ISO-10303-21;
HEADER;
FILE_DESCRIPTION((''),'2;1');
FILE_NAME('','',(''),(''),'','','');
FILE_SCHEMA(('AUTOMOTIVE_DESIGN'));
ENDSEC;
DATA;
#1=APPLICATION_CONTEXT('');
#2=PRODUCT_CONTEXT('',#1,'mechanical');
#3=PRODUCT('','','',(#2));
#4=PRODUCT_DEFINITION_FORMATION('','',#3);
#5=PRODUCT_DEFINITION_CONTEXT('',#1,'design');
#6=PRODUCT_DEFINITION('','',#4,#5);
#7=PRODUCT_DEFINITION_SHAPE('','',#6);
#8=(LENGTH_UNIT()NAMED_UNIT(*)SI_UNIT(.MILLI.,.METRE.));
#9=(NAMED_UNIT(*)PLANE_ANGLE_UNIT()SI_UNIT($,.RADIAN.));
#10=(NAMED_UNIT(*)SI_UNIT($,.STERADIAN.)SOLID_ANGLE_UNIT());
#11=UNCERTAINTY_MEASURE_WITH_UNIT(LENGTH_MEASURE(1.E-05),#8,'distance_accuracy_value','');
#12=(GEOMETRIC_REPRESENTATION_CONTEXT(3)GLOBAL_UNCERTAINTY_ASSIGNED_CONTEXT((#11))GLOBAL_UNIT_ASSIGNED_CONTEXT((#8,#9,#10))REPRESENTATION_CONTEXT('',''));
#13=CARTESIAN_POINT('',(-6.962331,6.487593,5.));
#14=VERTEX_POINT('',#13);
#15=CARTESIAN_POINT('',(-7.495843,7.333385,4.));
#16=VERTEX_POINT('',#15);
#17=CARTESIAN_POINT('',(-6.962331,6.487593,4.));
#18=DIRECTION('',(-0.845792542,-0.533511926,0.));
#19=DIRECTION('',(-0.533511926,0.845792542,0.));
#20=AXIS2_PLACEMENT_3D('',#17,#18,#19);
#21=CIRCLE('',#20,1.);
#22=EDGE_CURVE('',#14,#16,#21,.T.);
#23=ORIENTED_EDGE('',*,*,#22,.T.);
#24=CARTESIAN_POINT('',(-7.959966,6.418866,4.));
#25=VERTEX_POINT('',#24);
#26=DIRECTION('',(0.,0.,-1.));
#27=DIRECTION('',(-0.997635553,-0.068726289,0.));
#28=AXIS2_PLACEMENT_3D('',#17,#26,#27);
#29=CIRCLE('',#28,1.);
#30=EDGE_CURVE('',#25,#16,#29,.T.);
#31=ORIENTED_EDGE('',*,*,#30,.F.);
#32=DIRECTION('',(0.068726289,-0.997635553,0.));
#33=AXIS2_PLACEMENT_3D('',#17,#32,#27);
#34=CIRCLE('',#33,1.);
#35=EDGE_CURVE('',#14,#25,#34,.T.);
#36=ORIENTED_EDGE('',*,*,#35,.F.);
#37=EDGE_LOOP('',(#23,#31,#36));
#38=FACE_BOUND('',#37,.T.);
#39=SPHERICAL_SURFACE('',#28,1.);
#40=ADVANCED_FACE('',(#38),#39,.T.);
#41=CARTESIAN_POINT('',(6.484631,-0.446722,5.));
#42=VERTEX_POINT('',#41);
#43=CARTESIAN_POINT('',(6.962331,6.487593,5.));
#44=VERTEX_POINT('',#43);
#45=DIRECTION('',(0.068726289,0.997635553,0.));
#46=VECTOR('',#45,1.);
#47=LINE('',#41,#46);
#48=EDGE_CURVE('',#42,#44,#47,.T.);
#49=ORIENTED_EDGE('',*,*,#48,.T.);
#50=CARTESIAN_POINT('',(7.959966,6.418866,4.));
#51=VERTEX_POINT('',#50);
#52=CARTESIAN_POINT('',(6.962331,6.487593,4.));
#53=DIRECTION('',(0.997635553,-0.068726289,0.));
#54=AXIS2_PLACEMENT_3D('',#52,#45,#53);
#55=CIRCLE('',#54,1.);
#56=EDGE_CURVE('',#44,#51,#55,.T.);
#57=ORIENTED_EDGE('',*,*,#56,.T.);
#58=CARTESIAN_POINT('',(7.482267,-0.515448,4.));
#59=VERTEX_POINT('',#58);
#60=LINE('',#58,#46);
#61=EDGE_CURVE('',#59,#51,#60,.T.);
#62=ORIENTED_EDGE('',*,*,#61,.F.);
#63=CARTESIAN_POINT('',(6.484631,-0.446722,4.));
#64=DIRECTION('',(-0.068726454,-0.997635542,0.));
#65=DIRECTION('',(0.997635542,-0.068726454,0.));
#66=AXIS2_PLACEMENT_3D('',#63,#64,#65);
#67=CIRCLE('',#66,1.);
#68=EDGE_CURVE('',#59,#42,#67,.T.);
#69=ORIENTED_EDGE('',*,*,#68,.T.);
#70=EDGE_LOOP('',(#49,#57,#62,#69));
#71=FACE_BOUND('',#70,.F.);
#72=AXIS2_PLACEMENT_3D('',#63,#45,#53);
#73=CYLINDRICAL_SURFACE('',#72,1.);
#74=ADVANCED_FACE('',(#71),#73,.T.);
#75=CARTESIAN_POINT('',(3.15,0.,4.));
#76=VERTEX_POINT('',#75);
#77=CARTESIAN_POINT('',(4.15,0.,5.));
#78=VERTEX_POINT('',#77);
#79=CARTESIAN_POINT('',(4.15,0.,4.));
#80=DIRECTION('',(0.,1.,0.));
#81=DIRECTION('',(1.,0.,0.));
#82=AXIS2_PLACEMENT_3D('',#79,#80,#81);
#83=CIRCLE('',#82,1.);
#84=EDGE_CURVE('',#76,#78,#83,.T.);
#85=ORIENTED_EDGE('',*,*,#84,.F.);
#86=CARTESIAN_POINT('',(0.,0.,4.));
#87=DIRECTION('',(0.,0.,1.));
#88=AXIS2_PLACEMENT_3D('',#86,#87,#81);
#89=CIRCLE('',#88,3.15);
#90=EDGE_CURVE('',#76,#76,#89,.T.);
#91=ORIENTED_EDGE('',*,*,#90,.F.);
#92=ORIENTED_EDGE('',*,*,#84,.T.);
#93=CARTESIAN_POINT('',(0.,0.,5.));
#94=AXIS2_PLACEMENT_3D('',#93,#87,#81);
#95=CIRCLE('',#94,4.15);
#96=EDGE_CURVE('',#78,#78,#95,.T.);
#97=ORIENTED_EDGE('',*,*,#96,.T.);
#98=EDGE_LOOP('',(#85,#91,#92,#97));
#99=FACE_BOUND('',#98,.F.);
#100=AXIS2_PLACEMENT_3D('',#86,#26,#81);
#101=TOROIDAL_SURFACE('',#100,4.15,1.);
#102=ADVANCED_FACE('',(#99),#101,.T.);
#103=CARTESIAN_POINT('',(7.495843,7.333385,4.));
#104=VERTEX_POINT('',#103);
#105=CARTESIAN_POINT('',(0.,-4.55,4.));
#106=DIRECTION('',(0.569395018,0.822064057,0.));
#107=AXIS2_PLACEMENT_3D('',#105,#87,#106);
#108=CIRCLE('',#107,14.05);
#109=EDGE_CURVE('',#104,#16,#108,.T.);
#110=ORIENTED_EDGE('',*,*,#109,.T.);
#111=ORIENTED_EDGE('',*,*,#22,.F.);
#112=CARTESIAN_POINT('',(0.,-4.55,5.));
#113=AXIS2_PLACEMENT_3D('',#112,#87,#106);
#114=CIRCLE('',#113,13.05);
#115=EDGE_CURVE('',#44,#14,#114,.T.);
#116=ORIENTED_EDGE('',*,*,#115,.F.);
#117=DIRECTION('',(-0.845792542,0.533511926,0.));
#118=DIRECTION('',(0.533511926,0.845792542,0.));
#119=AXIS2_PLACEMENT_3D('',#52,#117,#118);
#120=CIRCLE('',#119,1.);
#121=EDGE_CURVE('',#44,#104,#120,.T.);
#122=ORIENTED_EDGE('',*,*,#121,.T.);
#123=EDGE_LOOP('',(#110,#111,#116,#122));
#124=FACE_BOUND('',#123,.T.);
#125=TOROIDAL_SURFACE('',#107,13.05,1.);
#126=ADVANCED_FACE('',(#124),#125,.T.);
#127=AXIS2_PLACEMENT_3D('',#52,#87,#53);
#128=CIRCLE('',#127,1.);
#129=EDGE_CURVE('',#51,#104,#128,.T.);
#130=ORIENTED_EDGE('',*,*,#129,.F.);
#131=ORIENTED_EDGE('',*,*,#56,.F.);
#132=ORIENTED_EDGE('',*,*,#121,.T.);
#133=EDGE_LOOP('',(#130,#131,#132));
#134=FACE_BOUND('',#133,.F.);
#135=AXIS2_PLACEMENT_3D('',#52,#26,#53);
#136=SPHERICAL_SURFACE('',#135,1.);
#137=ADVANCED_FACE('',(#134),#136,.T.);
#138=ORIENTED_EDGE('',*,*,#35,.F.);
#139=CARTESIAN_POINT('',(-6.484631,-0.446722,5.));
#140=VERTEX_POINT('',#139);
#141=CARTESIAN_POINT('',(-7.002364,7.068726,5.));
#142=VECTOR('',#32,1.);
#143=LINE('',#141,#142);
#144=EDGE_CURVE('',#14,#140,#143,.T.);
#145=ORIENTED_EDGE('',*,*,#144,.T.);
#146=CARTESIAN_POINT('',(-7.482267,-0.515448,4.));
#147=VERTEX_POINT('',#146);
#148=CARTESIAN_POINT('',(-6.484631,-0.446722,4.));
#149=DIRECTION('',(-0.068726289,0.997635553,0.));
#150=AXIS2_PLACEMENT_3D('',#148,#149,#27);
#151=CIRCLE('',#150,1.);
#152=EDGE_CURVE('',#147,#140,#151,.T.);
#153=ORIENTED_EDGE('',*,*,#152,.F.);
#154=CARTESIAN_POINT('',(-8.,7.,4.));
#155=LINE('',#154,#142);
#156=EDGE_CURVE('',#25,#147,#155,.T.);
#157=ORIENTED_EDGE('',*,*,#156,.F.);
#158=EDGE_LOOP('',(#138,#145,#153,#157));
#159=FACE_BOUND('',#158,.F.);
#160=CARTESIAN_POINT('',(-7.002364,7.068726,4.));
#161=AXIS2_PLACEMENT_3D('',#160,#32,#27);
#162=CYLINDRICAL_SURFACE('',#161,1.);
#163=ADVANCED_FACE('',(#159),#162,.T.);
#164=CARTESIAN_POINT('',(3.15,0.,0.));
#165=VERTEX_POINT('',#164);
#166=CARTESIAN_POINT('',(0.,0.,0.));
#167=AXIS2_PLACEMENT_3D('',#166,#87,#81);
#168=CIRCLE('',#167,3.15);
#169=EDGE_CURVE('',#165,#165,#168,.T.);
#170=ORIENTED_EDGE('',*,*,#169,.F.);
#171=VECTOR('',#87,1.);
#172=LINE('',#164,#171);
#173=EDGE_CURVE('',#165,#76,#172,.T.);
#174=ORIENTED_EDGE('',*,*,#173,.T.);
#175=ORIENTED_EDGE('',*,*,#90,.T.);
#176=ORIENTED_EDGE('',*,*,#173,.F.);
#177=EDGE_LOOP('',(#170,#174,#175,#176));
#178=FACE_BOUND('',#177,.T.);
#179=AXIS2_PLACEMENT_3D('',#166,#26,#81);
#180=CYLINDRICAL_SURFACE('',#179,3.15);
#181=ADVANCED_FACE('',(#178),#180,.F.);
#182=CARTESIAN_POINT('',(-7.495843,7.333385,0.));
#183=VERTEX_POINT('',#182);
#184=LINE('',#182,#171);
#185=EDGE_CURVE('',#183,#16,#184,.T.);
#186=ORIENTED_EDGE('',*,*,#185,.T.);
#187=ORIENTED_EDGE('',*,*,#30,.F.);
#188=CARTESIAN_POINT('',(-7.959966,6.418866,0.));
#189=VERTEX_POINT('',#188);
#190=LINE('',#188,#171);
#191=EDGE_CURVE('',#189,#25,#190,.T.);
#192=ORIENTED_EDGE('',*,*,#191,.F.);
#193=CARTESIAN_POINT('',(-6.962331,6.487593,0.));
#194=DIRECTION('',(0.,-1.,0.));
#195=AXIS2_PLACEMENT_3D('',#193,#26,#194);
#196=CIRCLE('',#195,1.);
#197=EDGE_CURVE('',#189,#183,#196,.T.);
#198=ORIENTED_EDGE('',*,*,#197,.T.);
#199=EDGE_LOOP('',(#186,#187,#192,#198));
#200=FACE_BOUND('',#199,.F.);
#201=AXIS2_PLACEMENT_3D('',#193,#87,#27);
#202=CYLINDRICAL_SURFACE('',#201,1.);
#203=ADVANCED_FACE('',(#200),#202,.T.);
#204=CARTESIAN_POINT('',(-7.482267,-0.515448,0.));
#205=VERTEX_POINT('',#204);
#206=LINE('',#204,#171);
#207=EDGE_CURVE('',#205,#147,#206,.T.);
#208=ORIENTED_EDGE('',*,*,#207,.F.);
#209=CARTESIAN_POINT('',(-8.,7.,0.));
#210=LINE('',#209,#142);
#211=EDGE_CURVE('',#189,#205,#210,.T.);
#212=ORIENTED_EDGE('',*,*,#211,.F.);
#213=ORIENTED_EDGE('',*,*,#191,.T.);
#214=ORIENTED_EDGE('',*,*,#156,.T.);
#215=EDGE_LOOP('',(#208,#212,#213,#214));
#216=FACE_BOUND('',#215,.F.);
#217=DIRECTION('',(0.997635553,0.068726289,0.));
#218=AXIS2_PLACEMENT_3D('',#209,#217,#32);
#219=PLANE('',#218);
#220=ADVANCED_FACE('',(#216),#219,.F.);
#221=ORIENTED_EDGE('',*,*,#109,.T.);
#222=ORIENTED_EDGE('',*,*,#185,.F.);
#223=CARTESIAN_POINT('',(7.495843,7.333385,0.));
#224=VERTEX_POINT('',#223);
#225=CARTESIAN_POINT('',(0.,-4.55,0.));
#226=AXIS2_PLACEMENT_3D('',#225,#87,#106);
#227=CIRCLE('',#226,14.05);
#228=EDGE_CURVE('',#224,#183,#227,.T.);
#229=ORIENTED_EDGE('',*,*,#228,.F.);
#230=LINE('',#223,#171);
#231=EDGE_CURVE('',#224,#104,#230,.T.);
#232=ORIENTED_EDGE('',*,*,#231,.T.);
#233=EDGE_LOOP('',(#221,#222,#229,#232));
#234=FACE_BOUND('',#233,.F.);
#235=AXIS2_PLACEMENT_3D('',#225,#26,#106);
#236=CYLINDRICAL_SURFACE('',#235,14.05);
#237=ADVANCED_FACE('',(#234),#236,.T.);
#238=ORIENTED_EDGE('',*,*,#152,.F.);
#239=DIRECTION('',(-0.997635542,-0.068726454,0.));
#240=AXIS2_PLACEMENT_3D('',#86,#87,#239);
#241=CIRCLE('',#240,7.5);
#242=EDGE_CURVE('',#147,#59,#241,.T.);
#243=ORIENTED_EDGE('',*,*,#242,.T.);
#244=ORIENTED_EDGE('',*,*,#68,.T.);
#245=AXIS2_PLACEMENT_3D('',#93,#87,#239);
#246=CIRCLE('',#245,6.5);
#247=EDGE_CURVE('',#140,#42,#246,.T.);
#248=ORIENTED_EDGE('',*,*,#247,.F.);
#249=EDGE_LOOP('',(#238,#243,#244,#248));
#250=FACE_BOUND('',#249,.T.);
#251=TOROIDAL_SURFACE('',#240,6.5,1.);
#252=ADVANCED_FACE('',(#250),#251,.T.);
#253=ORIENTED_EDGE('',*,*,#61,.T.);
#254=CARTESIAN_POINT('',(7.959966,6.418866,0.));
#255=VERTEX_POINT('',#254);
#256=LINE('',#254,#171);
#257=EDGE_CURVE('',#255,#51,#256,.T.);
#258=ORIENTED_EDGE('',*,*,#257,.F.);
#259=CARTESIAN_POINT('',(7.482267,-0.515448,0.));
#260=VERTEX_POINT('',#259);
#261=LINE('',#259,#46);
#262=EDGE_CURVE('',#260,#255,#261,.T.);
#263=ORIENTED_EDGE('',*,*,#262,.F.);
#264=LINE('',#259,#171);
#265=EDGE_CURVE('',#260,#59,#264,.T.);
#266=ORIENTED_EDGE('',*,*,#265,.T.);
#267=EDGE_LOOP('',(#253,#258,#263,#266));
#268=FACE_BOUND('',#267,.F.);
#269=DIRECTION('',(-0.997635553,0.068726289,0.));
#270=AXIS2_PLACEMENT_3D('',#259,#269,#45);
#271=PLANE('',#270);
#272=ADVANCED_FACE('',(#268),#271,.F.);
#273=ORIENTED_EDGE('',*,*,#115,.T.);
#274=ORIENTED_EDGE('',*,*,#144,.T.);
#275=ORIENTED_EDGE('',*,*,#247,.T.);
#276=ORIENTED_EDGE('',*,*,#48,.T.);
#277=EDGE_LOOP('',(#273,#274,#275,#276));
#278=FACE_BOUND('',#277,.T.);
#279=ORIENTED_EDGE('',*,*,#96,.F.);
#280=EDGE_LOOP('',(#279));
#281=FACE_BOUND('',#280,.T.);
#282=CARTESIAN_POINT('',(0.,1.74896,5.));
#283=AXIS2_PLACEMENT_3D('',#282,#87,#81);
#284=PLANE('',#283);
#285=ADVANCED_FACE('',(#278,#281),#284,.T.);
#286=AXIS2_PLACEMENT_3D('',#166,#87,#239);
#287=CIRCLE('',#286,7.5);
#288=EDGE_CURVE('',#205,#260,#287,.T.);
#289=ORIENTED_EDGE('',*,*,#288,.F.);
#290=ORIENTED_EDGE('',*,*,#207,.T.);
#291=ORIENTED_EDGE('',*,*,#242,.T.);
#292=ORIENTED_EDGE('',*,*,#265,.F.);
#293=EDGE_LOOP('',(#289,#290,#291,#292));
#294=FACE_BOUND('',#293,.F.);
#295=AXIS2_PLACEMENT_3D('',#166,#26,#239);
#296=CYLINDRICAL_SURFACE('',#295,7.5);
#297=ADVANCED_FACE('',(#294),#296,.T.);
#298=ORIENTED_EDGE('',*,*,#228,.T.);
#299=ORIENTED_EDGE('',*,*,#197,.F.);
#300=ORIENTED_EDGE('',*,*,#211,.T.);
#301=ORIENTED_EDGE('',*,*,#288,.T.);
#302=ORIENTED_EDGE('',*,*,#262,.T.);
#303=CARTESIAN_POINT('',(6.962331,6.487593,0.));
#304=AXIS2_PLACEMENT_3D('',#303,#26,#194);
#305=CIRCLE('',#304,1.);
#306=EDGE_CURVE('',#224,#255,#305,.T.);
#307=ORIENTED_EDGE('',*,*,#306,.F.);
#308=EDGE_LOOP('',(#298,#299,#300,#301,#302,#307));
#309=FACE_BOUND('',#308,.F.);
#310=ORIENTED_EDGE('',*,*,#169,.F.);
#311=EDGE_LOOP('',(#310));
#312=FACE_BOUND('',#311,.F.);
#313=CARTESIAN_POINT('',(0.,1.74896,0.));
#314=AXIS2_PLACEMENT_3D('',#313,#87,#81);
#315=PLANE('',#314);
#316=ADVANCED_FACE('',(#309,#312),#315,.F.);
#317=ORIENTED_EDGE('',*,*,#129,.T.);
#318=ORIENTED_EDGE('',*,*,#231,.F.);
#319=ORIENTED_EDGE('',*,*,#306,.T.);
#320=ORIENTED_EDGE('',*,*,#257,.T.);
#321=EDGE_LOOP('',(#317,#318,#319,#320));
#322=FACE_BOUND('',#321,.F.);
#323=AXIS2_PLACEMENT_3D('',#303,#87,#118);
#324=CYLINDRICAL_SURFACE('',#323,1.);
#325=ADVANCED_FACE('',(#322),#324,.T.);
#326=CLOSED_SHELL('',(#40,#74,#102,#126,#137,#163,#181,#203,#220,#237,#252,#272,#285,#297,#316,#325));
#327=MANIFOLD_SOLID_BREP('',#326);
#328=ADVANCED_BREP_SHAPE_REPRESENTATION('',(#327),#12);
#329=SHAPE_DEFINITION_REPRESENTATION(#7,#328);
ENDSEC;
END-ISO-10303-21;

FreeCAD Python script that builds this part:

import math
import FreeCAD as App
import Part
import Sketcher
from FreeCAD import Vector


def edges_at(feature, points):
    """Names of the edges that pass closest to the given points."""
    edges = feature.Shape.Edges
    near = lambda p: min(range(len(edges)), key=lambda i: edges[i].distToShape(Part.Vertex(*p))[0])
    return sorted({f"Edge{near(p) + 1}" for p in points})

doc = App.newDocument("Part")
body = doc.addObject("PartDesign::Body", "Body")

# Sketch on XY plane
sketch1 = body.newObject("Sketcher::SketchObject", "Sketch")
sketch1.AttachmentSupport = (doc.getObject("XY_Plane"), [""])
sketch1.MapMode = "FlatFace"
sketch1.addGeometry([
    Part.LineSegment(Vector(-8, 7, 0), Vector(-7.5, -0.5, 0)),  # 0
    Part.ArcOfCircle(Part.Circle(Vector(0, 0, 0), Vector(0, 0, 1), 7.5), math.radians(-176), math.radians(-4)),  # 1
    Part.LineSegment(Vector(7.5, -0.5, 0), Vector(8, 7, 0)),  # 2
    Part.ArcOfCircle(Part.Circle(Vector(0, -4.5, 0), Vector(0, 0, 1), 14.1), math.radians(55), math.radians(125)),  # 3
    Part.Circle(Vector(0, 0, 0), Vector(0, 0, 1), 3.1),  # 4
], False)
sketch1.addConstraint([
    Sketcher.Constraint("Tangent", 0, 2, 1, 1),
    Sketcher.Constraint("Tangent", 1, 2, 2, 1),
    Sketcher.Constraint("Coincident", 2, 2, 3, 1),
    Sketcher.Constraint("Coincident", 3, 2, 0, 1),
    Sketcher.Constraint("Coincident", 1, 3, -1, 1),
    Sketcher.Constraint("Coincident", 4, 3, -1, 1),
    Sketcher.Constraint("Symmetric", 2, 2, 3, 2, -2),
    Sketcher.Constraint("Diameter", 4, 6.3),
    Sketcher.Constraint("Radius", 1, 7.5),
    Sketcher.Constraint("Radius", 3, 14.05),
    Sketcher.Constraint("DistanceX", -1, 1, 2, 2, 8.0),
    Sketcher.Constraint("DistanceY", -1, 1, 2, 2, 7.0),
])
pad1 = body.newObject("PartDesign::Pad", "Pad")
pad1.Profile = sketch1
pad1.Length = 5
doc.recompute()

fillet = body.newObject("PartDesign::Fillet", "Fillet")
fillet.Base = (pad1, edges_at(pad1, [
    (-8, 7, 2.5),
    (0, -7.5, 5),
    (0, 9.5, 5),
    (8, 7, 2.5),
    (-3.15, 0, 5),
]))
fillet.Radius = 1

doc.recompute()
